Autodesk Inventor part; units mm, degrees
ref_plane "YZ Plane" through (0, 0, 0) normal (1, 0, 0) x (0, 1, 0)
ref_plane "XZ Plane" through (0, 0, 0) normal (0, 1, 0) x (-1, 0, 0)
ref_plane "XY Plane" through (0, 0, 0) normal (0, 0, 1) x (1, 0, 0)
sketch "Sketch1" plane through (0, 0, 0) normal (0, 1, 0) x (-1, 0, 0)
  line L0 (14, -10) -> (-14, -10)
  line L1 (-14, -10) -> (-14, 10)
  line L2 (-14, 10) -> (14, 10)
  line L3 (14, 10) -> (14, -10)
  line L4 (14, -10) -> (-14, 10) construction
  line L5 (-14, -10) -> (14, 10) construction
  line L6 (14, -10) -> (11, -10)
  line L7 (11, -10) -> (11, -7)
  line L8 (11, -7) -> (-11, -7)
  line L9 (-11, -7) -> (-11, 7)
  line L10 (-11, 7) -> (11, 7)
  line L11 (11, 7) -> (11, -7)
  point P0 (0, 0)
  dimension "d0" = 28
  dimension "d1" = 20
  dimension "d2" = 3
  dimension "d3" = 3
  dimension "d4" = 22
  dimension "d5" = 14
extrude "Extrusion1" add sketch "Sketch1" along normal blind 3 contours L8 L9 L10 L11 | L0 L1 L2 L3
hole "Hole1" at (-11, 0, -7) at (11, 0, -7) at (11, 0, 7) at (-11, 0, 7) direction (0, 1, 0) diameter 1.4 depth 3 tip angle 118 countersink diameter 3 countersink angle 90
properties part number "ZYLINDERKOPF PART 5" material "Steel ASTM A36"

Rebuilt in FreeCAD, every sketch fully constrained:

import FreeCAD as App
import Part
import Sketcher
from FreeCAD import Vector
Q = App.Units.Quantity

doc = App.newDocument("Part")
body = doc.addObject("PartDesign::Body", "Body")

sketch1 = body.newObject("Sketcher::SketchObject", "Sketch")
sketch1.AttachmentSupport = (doc.getObject("XZ_Plane"), [""])
sketch1.MapMode = "FlatFace"
sketch1.addGeometry(Part.LineSegment(Vector(-11, -10, 0), Vector(-14, -10, 0)), False)
sketch1.addGeometry(Part.LineSegment(Vector(-14, -10, 0), Vector(-14, 10, 0)), False)
sketch1.addGeometry(Part.LineSegment(Vector(-14, 10, 0), Vector(14, 10, 0)), False)
sketch1.addGeometry(Part.LineSegment(Vector(14, 10, 0), Vector(14, -10, 0)), False)
sketch1.addGeometry(Part.LineSegment(Vector(14, -10, 0), Vector(-11, -10, 0)), False)
sketch1.addConstraint(Sketcher.Constraint("Coincident", 0, 2, 1, 1))
sketch1.addConstraint(Sketcher.Constraint("Coincident", 1, 2, 2, 1))
sketch1.addConstraint(Sketcher.Constraint("Coincident", 2, 2, 3, 1))
sketch1.addConstraint(Sketcher.Constraint("Coincident", 3, 2, 4, 1))
sketch1.addConstraint(Sketcher.Constraint("Coincident", 4, 2, 0, 1))
sketch1.addConstraint(Sketcher.Constraint("Horizontal", 0))
sketch1.addConstraint(Sketcher.Constraint("Vertical", 1))
sketch1.addConstraint(Sketcher.Constraint("Horizontal", 2))
sketch1.addConstraint(Sketcher.Constraint("Vertical", 3))
sketch1.addConstraint(Sketcher.Constraint("Horizontal", 4))
sketch1.addConstraint(Sketcher.Constraint("Symmetric", 0, 2, 2, 2, -1, 1))
sketch1.addConstraint(Sketcher.Constraint("DistanceX", 0, 2, 0, 1, Q("3 mm")))
sketch1.addConstraint(Sketcher.Constraint("DistanceX", 2, 1, 2, 2, Q("28 mm")))
sketch1.addConstraint(Sketcher.Constraint("DistanceY", 1, 1, 1, 2, Q("20 mm")))
pad1 = body.newObject("PartDesign::Pad", "Pad")
pad1.Profile = sketch1
pad1.Length = 3
pad1.Reversed = True

sketch2 = body.newObject("Sketcher::SketchObject", "Sketch001")
sketch2.AttachmentSupport = (doc.getObject("XZ_Plane"), [""])
sketch2.MapMode = "FlatFace"
sketch2.addGeometry(Part.Circle(Vector(-11, -7, 0), Vector(0, 0, 1), 0.7), False)
sketch2.addGeometry(Part.Circle(Vector(11, -7, 0), Vector(0, 0, 1), 0.7), False)
sketch2.addGeometry(Part.Circle(Vector(11, 7, 0), Vector(0, 0, 1), 0.7), False)
sketch2.addGeometry(Part.Circle(Vector(-11, 7, 0), Vector(0, 0, 1), 0.7), False)
sketch2.addConstraint(Sketcher.Constraint("Equal", 0, 1))
sketch2.addConstraint(Sketcher.Constraint("Equal", 1, 2))
sketch2.addConstraint(Sketcher.Constraint("Equal", 2, 3))
sketch2.addConstraint(Sketcher.Constraint("Symmetric", 0, 3, 2, 3, -1, 1))
sketch2.addConstraint(Sketcher.Constraint("Symmetric", 1, 3, 3, 3, -1, 1))
sketch2.addConstraint(Sketcher.Constraint("Symmetric", 0, 3, 1, 3, -2))
sketch2.addConstraint(Sketcher.Constraint("Diameter", 0, Q("1.4 mm")))
sketch2.addConstraint(Sketcher.Constraint("DistanceX", 0, 3, -1, 1, Q("11 mm")))
sketch2.addConstraint(Sketcher.Constraint("DistanceY", 0, 3, -1, 1, Q("7 mm")))
doc.recompute()
hole = body.newObject("PartDesign::Hole", "Hole")
hole.Profile = sketch2
hole.ThreadType = "None"
hole.Diameter = 1.4
hole.DepthType = "Dimension"
hole.Depth = 3
hole.DrillPoint = "Angled"
hole.DrillPointAngle = 118
hole.HoleCutType = "Countersink"
hole.HoleCutDiameter = 3
hole.HoleCutCountersinkAngle = 90

doc.recompute()
